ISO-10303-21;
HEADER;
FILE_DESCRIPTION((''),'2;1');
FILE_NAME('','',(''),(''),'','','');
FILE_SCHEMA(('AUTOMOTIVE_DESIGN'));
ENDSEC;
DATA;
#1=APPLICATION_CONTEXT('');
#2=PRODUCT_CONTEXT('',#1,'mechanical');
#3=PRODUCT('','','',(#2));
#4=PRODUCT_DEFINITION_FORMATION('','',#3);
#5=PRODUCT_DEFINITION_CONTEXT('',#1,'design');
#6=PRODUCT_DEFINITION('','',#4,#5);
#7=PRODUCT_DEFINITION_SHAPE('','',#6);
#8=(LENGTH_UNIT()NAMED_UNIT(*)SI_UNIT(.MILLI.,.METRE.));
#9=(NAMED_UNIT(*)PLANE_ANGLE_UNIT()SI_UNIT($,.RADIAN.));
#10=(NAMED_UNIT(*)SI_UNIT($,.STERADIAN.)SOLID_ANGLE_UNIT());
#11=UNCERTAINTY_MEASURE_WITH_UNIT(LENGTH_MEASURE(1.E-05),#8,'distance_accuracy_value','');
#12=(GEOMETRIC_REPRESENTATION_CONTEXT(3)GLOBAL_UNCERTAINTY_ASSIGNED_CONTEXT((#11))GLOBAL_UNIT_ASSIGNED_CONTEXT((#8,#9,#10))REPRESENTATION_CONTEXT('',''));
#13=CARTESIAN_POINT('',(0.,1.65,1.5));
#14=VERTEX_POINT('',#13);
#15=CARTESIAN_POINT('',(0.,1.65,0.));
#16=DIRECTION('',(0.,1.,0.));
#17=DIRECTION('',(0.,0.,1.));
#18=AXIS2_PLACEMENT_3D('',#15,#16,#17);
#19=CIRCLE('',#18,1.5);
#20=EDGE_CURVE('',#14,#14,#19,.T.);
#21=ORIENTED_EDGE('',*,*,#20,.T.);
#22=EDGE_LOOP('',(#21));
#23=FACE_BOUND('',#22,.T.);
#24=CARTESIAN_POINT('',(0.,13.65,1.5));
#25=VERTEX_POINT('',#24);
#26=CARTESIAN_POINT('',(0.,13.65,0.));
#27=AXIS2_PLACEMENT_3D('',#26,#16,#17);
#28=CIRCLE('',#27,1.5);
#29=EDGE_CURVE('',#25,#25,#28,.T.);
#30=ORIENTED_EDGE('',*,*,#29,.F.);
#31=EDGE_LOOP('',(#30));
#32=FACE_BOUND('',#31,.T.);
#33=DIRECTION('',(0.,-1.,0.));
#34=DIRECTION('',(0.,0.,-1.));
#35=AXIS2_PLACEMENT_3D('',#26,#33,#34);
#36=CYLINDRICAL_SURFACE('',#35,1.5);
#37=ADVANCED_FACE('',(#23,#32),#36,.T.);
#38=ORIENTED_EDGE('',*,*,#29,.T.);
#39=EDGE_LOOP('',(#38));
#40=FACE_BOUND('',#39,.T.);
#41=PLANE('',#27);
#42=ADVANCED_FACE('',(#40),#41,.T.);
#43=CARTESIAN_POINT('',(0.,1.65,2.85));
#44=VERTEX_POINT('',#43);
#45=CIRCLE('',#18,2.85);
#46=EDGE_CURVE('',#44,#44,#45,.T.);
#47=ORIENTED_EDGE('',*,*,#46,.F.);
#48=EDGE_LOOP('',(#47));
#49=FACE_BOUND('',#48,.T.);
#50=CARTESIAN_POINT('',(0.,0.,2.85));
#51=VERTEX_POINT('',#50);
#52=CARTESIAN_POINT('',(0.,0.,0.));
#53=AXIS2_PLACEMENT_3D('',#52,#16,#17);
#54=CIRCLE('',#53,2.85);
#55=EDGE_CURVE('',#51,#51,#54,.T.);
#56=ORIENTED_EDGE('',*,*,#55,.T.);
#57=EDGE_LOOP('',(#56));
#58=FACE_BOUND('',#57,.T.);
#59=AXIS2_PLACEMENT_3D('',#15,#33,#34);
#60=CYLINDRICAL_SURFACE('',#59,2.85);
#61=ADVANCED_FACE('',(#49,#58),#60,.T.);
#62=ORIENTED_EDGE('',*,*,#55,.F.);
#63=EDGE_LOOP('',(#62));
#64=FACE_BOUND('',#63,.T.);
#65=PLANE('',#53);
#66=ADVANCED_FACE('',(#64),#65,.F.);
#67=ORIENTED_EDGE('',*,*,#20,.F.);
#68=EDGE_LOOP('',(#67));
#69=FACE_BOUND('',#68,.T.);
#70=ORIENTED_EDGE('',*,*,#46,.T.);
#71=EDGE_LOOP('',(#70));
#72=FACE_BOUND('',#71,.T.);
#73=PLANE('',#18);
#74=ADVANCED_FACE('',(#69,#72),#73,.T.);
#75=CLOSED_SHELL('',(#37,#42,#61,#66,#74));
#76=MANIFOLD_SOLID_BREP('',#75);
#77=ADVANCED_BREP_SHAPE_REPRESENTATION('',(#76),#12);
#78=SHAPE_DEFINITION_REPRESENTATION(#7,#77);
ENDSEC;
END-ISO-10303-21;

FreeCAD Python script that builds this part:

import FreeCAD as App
import Part
import Sketcher
from FreeCAD import Vector

doc = App.newDocument("Part")
body = doc.addObject("PartDesign::Body", "Body")

sketch1 = body.newObject("Sketcher::SketchObject", "Sketch")
sketch1.AttachmentSupport = (doc.getObject("XZ_Plane"), [""])
sketch1.MapMode = "FlatFace"
sketch1.addGeometry(Part.Circle(Vector(0, 0, 0), Vector(0, 0, 1), 2.9), False)
sketch1.addConstraint([
    Sketcher.Constraint("Coincident", 0, 3, -1, 1),
    Sketcher.Constraint("Diameter", 0, 5.7),
])
pad1 = body.newObject("PartDesign::Pad", "Pad")
pad1.Profile = sketch1
pad1.Length = 1.65
pad1.Reversed = True

sketch2 = body.newObject("Sketcher::SketchObject", "Sketch001")
sketch2.AttachmentSupport = (doc.getObject("XZ_Plane"), [""])
sketch2.MapMode = "FlatFace"
sketch2.AttachmentOffset = App.Placement(Vector(0, 0, -1.65), App.Rotation())
sketch2.addGeometry(Part.Circle(Vector(0, 0, 0), Vector(0, 0, 1), 1.5), False)
sketch2.addConstraint([
    Sketcher.Constraint("Coincident", 0, 3, -1, 1),
    Sketcher.Constraint("Diameter", 0, 3.0),
])
pad2 = body.newObject("PartDesign::Pad", "Pad001")
pad2.Profile = sketch2
pad2.Length = 12
pad2.Reversed = True

doc.recompute()
